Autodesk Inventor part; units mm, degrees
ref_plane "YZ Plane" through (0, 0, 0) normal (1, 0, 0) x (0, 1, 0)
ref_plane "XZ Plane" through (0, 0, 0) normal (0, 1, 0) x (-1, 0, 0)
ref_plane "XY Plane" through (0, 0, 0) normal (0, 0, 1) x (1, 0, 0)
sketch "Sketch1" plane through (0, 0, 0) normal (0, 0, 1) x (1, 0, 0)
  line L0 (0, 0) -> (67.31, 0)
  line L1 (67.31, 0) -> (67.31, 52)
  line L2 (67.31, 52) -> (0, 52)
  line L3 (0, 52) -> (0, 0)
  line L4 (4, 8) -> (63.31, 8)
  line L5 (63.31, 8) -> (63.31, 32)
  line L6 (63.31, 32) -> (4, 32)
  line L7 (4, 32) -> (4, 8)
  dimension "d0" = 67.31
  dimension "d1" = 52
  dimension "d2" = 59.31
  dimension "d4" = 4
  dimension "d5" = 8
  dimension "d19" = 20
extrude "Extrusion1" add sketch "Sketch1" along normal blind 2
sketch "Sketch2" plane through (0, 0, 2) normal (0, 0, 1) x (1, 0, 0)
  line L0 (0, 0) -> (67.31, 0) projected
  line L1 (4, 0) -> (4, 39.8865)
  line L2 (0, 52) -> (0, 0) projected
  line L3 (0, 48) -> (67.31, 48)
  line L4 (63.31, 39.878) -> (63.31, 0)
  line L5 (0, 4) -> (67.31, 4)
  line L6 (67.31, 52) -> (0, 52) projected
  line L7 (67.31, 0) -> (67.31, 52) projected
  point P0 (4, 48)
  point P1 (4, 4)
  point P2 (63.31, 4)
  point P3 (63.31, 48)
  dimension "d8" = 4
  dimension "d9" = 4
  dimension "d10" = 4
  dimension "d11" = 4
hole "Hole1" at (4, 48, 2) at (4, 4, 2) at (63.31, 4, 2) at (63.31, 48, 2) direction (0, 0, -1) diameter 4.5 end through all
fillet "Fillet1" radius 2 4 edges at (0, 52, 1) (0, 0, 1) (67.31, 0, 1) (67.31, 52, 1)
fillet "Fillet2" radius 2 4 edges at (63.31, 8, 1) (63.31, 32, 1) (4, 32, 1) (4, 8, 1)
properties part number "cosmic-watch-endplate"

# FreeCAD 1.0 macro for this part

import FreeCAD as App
import Part
import Sketcher

V = App.Vector


def edges_at(feature, points):
    """Names of the edges that pass closest to the given points."""
    edges = feature.Shape.Edges
    near = lambda p: min(range(len(edges)), key=lambda i: edges[i].distToShape(Part.Vertex(*p))[0])
    return sorted({f"Edge{near(p) + 1}" for p in points})

doc = App.newDocument("Part")
body = doc.addObject("PartDesign::Body", "Body")

# Sketch on XY plane
sketch1 = body.newObject("Sketcher::SketchObject", "Sketch")
sketch1.AttachmentSupport = (doc.getObject("XY_Plane"), [""])
sketch1.MapMode = "FlatFace"
sketch1.addGeometry([
    Part.LineSegment(V(0, 52, 0), V(0, 0, 0)),  # 0
    Part.LineSegment(V(0, 0, 0), V(67.31, 0, 0)),  # 1
    Part.LineSegment(V(67.31, 0, 0), V(67.31, 52, 0)),  # 2
    Part.LineSegment(V(67.31, 52, 0), V(0, 52, 0)),  # 3
    Part.LineSegment(V(63.31, 8, 0), V(4, 8, 0)),  # 4
    Part.LineSegment(V(4, 8, 0), V(4, 32, 0)),  # 5
    Part.LineSegment(V(4, 32, 0), V(63.31, 32, 0)),  # 6
    Part.LineSegment(V(63.31, 32, 0), V(63.31, 8, 0)),  # 7
], False)
sketch1.addConstraint([
    Sketcher.Constraint("Coincident", 0, 2, 1, 1),
    Sketcher.Constraint("Coincident", 1, 2, 2, 1),
    Sketcher.Constraint("Coincident", 2, 2, 3, 1),
    Sketcher.Constraint("Coincident", 3, 2, 0, 1),
    Sketcher.Constraint("Coincident", 4, 2, 5, 1),
    Sketcher.Constraint("Coincident", 5, 2, 6, 1),
    Sketcher.Constraint("Coincident", 6, 2, 7, 1),
    Sketcher.Constraint("Coincident", 7, 2, 4, 1),
    Sketcher.Constraint("Vertical", 0),
    Sketcher.Constraint("Horizontal", 1),
    Sketcher.Constraint("Vertical", 2),
    Sketcher.Constraint("Horizontal", 3),
    Sketcher.Constraint("Horizontal", 4),
    Sketcher.Constraint("Vertical", 5),
    Sketcher.Constraint("Horizontal", 6),
    Sketcher.Constraint("Vertical", 7),
    Sketcher.Constraint("Coincident", 0, 2, -1, 1),
    Sketcher.Constraint("DistanceY", 0, 2, 0, 1, 52.0),
    Sketcher.Constraint("DistanceX", -1, 1, 4, 2, 4.0),
    Sketcher.Constraint("DistanceY", -1, 1, 4, 2, 8.0),
    Sketcher.Constraint("DistanceY", 5, 2, 3, 2, 20.0),
    Sketcher.Constraint("DistanceX", 6, 2, 2, 2, 4.0),
    Sketcher.Constraint("DistanceX", 1, 1, 1, 2, 67.31),
])
pad1 = body.newObject("PartDesign::Pad", "Pad")
pad1.Profile = sketch1
pad1.Length = 2

# Sketch on XY plane
sketch2 = body.newObject("Sketcher::SketchObject", "Sketch001")
sketch2.AttachmentSupport = (doc.getObject("XY_Plane"), [""])
sketch2.MapMode = "FlatFace"
sketch2.AttachmentOffset = App.Placement(V(0, 0, 2), App.Rotation())
sketch2.addGeometry([
    Part.Circle(V(4, 48, 0), V(0, 0, 1), 2.25),
    Part.Circle(V(4, 4, 0), V(0, 0, 1), 2.25),
    Part.Circle(V(63.31, 4, 0), V(0, 0, 1), 2.25),
    Part.Circle(V(63.31, 48, 0), V(0, 0, 1), 2.25),
], False)
sketch2.addConstraint([
    Sketcher.Constraint("Equal", 0, 1),
    Sketcher.Constraint("Equal", 1, 2),
    Sketcher.Constraint("Equal", 2, 3),
    Sketcher.Constraint("Horizontal", 1, 3, 2, 3),
    Sketcher.Constraint("Horizontal", 0, 3, 3, 3),
    Sketcher.Constraint("Vertical", 0, 3, 1, 3),
    Sketcher.Constraint("Vertical", 2, 3, 3, 3),
    Sketcher.Constraint("Diameter", 0, 4.5),
    Sketcher.Constraint("DistanceX", -1, 1, 0, 3, 4.0),
    Sketcher.Constraint("DistanceY", -1, 1, 0, 3, 48.0),
    Sketcher.Constraint("DistanceY", -1, 1, 1, 3, 4.0),
    Sketcher.Constraint("DistanceX", -1, 1, 2, 3, 63.31),
])
doc.recompute()
hole = body.newObject("PartDesign::Hole", "Hole")
hole.Profile = sketch2
hole.ThreadType = "None"
hole.Diameter = 4.5
hole.DepthType = "ThroughAll"
doc.recompute()

fillet = body.newObject("PartDesign::Fillet", "Fillet")
fillet.Base = (hole, edges_at(hole, [
    (0, 52, 1),
    (0, 0, 1),
    (67.31, 0, 1),
    (67.31, 52, 1),
]))
fillet.Radius = 2
doc.recompute()

fillet2 = body.newObject("PartDesign::Fillet", "Fillet001")
fillet2.Base = (fillet, edges_at(fillet, [
    (63.31, 8, 1),
    (63.31, 32, 1),
    (4, 32, 1),
    (4, 8, 1),
]))
fillet2.Radius = 2

doc.recompute()
